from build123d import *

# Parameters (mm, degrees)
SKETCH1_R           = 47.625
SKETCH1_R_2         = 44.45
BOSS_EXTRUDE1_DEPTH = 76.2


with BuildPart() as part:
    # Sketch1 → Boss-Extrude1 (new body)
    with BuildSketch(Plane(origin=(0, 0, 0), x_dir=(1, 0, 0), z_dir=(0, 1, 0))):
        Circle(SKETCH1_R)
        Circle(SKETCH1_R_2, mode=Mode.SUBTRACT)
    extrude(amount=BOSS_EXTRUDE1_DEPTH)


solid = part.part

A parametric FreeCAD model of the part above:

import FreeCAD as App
import Part
import Sketcher
Q = App.Units.Quantity

doc = App.newDocument("Part")
body = doc.addObject("PartDesign::Body", "Body")

sketch1 = body.newObject("Sketcher::SketchObject", "Sketch")
sketch1.AttachmentSupport = (doc.getObject("XZ_Plane"), [""])
sketch1.MapMode = "FlatFace"
sketch1.addGeometry([
    Part.Circle(App.Vector(0, 0, 0), App.Vector(0, 0, 1), 48),
    Part.Circle(App.Vector(0, 0, 0), App.Vector(0, 0, 1), 44),
], False)
sketch1.addConstraint([
    Sketcher.Constraint("Coincident", 0, 3, -1, 1),
    Sketcher.Constraint("Coincident", 1, 3, -1, 1),
    Sketcher.Constraint("Diameter", 1, Q("3.5 in")),
    Sketcher.Constraint("Diameter", 0, Q("3.75 in")),
])
pad1 = body.newObject("PartDesign::Pad", "Pad")
pad1.Profile = sketch1
pad1.Length = Q("3 in")
pad1.Reversed = True

doc.recompute()
